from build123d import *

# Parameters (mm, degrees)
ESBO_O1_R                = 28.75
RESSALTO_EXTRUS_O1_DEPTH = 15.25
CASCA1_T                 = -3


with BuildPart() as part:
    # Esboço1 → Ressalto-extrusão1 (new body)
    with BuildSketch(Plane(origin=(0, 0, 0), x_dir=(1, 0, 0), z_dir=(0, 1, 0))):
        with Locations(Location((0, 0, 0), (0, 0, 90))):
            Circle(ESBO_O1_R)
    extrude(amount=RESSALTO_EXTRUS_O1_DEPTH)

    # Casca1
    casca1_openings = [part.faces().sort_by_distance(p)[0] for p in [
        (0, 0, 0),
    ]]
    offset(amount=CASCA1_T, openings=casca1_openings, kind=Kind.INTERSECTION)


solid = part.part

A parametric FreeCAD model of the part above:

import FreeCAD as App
import Part
import Sketcher
from FreeCAD import Vector


def faces_at(feature, points):
    """Names of the faces that lie closest to the given points."""
    faces = feature.Shape.Faces
    near = lambda p: min(range(len(faces)), key=lambda i: faces[i].distToShape(Part.Vertex(*p))[0])
    return sorted({f"Face{near(p) + 1}" for p in points})

doc = App.newDocument("Part")
body = doc.addObject("PartDesign::Body", "Body")

# Sketch on XZ plane
sketch1 = body.newObject("Sketcher::SketchObject", "Sketch")
sketch1.AttachmentSupport = (doc.getObject("XZ_Plane"), [""])
sketch1.MapMode = "FlatFace"
sketch1.addGeometry(Part.Circle(Vector(0, 0, 0), Vector(0, 0, 1), 29), False)
sketch1.addConstraint([
    Sketcher.Constraint("Coincident", 0, 3, -1, 1),
    Sketcher.Constraint("Diameter", 0, 57.5),
])
pad1 = body.newObject("PartDesign::Pad", "Pad")
pad1.Profile = sketch1
pad1.Length = 15.25
pad1.Reversed = True
doc.recompute()

thickness = body.newObject("PartDesign::Thickness", "Thickness")
thickness.Base = (pad1, faces_at(pad1, [(0, 0, 0)]))
thickness.Value = 3
thickness.Reversed = True
thickness.Join = "Intersection"

doc.recompute()
